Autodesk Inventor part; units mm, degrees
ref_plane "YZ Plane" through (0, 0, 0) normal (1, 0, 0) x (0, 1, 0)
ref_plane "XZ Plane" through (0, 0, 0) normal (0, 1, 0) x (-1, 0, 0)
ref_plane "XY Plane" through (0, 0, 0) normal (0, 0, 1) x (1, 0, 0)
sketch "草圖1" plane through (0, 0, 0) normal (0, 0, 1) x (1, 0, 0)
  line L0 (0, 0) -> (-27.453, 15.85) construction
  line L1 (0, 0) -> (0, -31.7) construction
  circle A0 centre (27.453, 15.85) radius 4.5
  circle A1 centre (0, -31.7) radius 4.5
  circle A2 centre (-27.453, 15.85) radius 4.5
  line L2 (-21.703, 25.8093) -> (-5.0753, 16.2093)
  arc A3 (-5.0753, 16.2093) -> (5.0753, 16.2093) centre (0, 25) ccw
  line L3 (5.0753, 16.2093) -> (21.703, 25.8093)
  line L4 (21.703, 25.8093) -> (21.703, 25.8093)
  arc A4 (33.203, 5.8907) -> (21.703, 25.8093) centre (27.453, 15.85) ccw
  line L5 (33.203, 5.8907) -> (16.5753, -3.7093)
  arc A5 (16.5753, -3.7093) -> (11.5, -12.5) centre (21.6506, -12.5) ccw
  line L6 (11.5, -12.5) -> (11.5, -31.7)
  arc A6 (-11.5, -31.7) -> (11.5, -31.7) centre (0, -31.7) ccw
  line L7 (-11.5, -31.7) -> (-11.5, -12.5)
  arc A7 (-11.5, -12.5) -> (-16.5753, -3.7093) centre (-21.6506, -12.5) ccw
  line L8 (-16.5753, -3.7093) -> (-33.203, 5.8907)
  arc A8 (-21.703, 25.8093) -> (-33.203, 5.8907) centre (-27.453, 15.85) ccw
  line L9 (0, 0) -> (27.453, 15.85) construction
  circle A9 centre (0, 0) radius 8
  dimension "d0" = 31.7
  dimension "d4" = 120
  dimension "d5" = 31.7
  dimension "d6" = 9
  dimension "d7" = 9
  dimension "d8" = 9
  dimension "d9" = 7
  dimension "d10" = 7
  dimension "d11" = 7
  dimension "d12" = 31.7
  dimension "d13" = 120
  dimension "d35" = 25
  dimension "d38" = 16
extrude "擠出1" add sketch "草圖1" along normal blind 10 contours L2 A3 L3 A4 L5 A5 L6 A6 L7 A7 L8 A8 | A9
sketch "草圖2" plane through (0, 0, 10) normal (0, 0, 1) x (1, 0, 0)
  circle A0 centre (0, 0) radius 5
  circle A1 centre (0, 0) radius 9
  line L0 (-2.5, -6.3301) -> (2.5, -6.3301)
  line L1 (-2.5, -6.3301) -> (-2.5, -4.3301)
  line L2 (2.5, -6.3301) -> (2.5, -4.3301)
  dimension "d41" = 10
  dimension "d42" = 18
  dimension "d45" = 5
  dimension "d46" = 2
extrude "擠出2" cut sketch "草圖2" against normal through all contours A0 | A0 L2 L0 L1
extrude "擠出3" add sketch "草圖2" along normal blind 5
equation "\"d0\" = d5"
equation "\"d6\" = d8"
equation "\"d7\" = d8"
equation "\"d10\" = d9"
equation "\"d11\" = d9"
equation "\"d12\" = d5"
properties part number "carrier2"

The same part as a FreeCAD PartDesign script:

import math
import FreeCAD as App
import Part
import Sketcher
from FreeCAD import Vector
Q = App.Units.Quantity

doc = App.newDocument("Part")
body = doc.addObject("PartDesign::Body", "Body")

sketch1 = doc.addObject("Sketcher::SketchObject", "Sketch")
body.addObject(sketch1)
sketch1.AttachmentSupport = (doc.XY_Plane, [""])
sketch1.MapMode = "FlatFace"
sketch1.addGeometry(Part.LineSegment(Vector(-5.0753, 16.2093, 0), Vector(-21.703, 25.8093, 0)), False)
sketch1.addGeometry(Part.ArcOfCircle(Part.Circle(Vector(-27.453, 15.85, 0), Vector(0, 0, 1), 11.500007), math.radians(60.00002), math.radians(240.00002)), False)
sketch1.addGeometry(Part.LineSegment(Vector(-33.203, 5.8907, 0), Vector(-16.5753, -3.7093, 0)), False)
sketch1.addGeometry(Part.ArcOfCircle(Part.Circle(Vector(-21.6506, -12.5, 0), Vector(0, 0, 1), 10.1506), math.radians(0), math.radians(60.000064)), False)
sketch1.addGeometry(Part.LineSegment(Vector(-11.5, -12.5, 0), Vector(-11.5, -31.7, 0)), False)
sketch1.addGeometry(Part.ArcOfCircle(Part.Circle(Vector(0, -31.7, 0), Vector(0, 0, 1), 11.5), math.radians(180), math.radians(360)), False)
sketch1.addGeometry(Part.LineSegment(Vector(11.5, -31.7, 0), Vector(11.5, -12.5, 0)), False)
sketch1.addGeometry(Part.ArcOfCircle(Part.Circle(Vector(21.6506, -12.5, 0), Vector(0, 0, 1), 10.15062), math.radians(119.999936), math.radians(180)), False)
sketch1.addGeometry(Part.LineSegment(Vector(16.5753, -3.7093, 0), Vector(33.203, 5.8907, 0)), False)
sketch1.addGeometry(Part.ArcOfCircle(Part.Circle(Vector(27.453, 15.85, 0), Vector(0, 0, 1), 11.500007), math.radians(-60.00002), math.radians(119.99998)), False)
sketch1.addGeometry(Part.LineSegment(Vector(21.703, 25.8093, 0), Vector(5.0753, 16.2093, 0)), False)
sketch1.addGeometry(Part.ArcOfCircle(Part.Circle(Vector(0, 25, 0), Vector(0, 0, 1), 10.15062), math.radians(-119.999936), math.radians(-60.000064)), False)
sketch1.addGeometry(Part.Circle(Vector(0, -31.7, 0), Vector(0, 0, 1), 4.5), False)
sketch1.addGeometry(Part.Circle(Vector(-27.453, 15.85, 0), Vector(0, 0, 1), 4.5), False)
sketch1.addGeometry(Part.Circle(Vector(27.453, 15.85, 0), Vector(0, 0, 1), 4.5), False)
sketch1.addConstraint(Sketcher.Constraint("Tangent", 0, 2, 1, 1))
sketch1.addConstraint(Sketcher.Constraint("Tangent", 1, 2, 2, 1))
sketch1.addConstraint(Sketcher.Constraint("Tangent", 2, 2, 3, 2))
sketch1.addConstraint(Sketcher.Constraint("Tangent", 3, 1, 4, 1))
sketch1.addConstraint(Sketcher.Constraint("Tangent", 4, 2, 5, 1))
sketch1.addConstraint(Sketcher.Constraint("Tangent", 5, 2, 6, 1))
sketch1.addConstraint(Sketcher.Constraint("Tangent", 6, 2, 7, 2))
sketch1.addConstraint(Sketcher.Constraint("Tangent", 7, 1, 8, 1))
sketch1.addConstraint(Sketcher.Constraint("Tangent", 8, 2, 9, 1))
sketch1.addConstraint(Sketcher.Constraint("Tangent", 9, 2, 10, 1))
sketch1.addConstraint(Sketcher.Constraint("Tangent", 10, 2, 11, 2))
sketch1.addConstraint(Sketcher.Constraint("Tangent", 11, 1, 0, 1))
sketch1.addConstraint(Sketcher.Constraint("Vertical", 4))
sketch1.addConstraint(Sketcher.Constraint("Vertical", 6))
sketch1.addConstraint(Sketcher.Constraint("Coincident", 12, 3, 5, 3))
sketch1.addConstraint(Sketcher.Constraint("Coincident", 13, 3, 1, 3))
sketch1.addConstraint(Sketcher.Constraint("Coincident", 14, 3, 9, 3))
sketch1.addConstraint(Sketcher.Constraint("Equal", 1, 5))
sketch1.addConstraint(Sketcher.Constraint("Equal", 3, 7))
sketch1.addConstraint(Sketcher.Constraint("Equal", 5, 9))
sketch1.addConstraint(Sketcher.Constraint("Equal", 7, 11))
sketch1.addConstraint(Sketcher.Constraint("Equal", 12, 13))
sketch1.addConstraint(Sketcher.Constraint("Equal", 13, 14))
sketch1.addConstraint(Sketcher.Constraint("Symmetric", 3, 3, 7, 3, -2))
sketch1.addConstraint(Sketcher.Constraint("Symmetric", 1, 3, 9, 3, -2))
sketch1.addConstraint(Sketcher.Constraint("PointOnObject", 11, 3, -2))
sketch1.addConstraint(Sketcher.Constraint("Parallel", 0, 2))
sketch1.addConstraint(Sketcher.Constraint("Equal", 0, 2))
sketch1.addConstraint(Sketcher.Constraint("Diameter", 12, Q("9 mm")))
sketch1.addConstraint(Sketcher.Constraint("DistanceY", -1, 1, 11, 3, Q("25 mm")))
sketch1.addConstraint(Sketcher.Constraint("DistanceY", 5, 3, -1, 1, Q("31.7 mm")))
sketch1.addConstraint(Sketcher.Constraint("Radius", 1, Q("11.5 mm")))
sketch1.addConstraint(Sketcher.Constraint("DistanceY", 4, 2, 4, 1, Q("19.2 mm")))
sketch1.addConstraint(Sketcher.Constraint("Distance", 0, Q("19.2 mm")))
pad1 = doc.addObject("PartDesign::Pad", "Pad")
body.addObject(pad1)
pad1.Profile = sketch1
pad1.Length = 10

sketch2 = doc.addObject("Sketcher::SketchObject", "Sketch001")
body.addObject(sketch2)
sketch2.AttachmentSupport = (doc.XY_Plane, [""])
sketch2.MapMode = "FlatFace"
sketch2.AttachmentOffset = App.Placement(Vector(0, 0, 10), App.Rotation())
sketch2.addGeometry(Part.ArcOfCircle(Part.Circle(Vector(0, 0, 0), Vector(0, 0, 1), 5), math.radians(-59.999845), math.radians(239.999845)), False)
sketch2.addGeometry(Part.LineSegment(Vector(-2.5, -4.3301, 0), Vector(-2.5, -6.3301, 0)), False)
sketch2.addGeometry(Part.LineSegment(Vector(-2.5, -6.3301, 0), Vector(2.5, -6.3301, 0)), False)
sketch2.addGeometry(Part.LineSegment(Vector(2.5, -6.3301, 0), Vector(2.5, -4.3301, 0)), False)
sketch2.addConstraint(Sketcher.Constraint("Coincident", 0, 2, 1, 1))
sketch2.addConstraint(Sketcher.Constraint("Coincident", 1, 2, 2, 1))
sketch2.addConstraint(Sketcher.Constraint("Coincident", 2, 2, 3, 1))
sketch2.addConstraint(Sketcher.Constraint("Coincident", 3, 2, 0, 1))
sketch2.addConstraint(Sketcher.Constraint("Vertical", 1))
sketch2.addConstraint(Sketcher.Constraint("Horizontal", 2))
sketch2.addConstraint(Sketcher.Constraint("Vertical", 3))
sketch2.addConstraint(Sketcher.Constraint("Coincident", 0, 3, -1, 1))
sketch2.addConstraint(Sketcher.Constraint("Horizontal", 0, 2, 3, 2))
sketch2.addConstraint(Sketcher.Constraint("Radius", 0, Q("5 mm")))
sketch2.addConstraint(Sketcher.Constraint("DistanceX", 2, 1, 2, 2, Q("5 mm")))
sketch2.addConstraint(Sketcher.Constraint("DistanceY", 1, 2, 1, 1, Q("2 mm")))
pocket1 = doc.addObject("PartDesign::Pocket", "Pocket")
body.addObject(pocket1)
pocket1.Profile = sketch2
pocket1.Type = "ThroughAll"

sketch3 = doc.addObject("Sketcher::SketchObject", "Sketch002")
body.addObject(sketch3)
sketch3.AttachmentSupport = (doc.XY_Plane, [""])
sketch3.MapMode = "FlatFace"
sketch3.AttachmentOffset = App.Placement(Vector(0, 0, 10), App.Rotation())
sketch3.addGeometry(Part.Circle(Vector(0, 0, 0), Vector(0, 0, 1), 9), False)
sketch3.addGeometry(Part.ArcOfCircle(Part.Circle(Vector(0, 0, 0), Vector(0, 0, 1), 5), math.radians(-59.999845), math.radians(239.999845)), False)
sketch3.addGeometry(Part.LineSegment(Vector(2.5, -4.3301, 0), Vector(2.5, -6.3301, 0)), False)
sketch3.addGeometry(Part.LineSegment(Vector(2.5, -6.3301, 0), Vector(-2.5, -6.3301, 0)), False)
sketch3.addGeometry(Part.LineSegment(Vector(-2.5, -6.3301, 0), Vector(-2.5, -4.3301, 0)), False)
sketch3.addConstraint(Sketcher.Constraint("Coincident", 1, 1, 2, 1))
sketch3.addConstraint(Sketcher.Constraint("Coincident", 2, 2, 3, 1))
sketch3.addConstraint(Sketcher.Constraint("Coincident", 3, 2, 4, 1))
sketch3.addConstraint(Sketcher.Constraint("Coincident", 4, 2, 1, 2))
sketch3.addConstraint(Sketcher.Constraint("Vertical", 2))
sketch3.addConstraint(Sketcher.Constraint("Horizontal", 3))
sketch3.addConstraint(Sketcher.Constraint("Vertical", 4))
sketch3.addConstraint(Sketcher.Constraint("Coincident", 0, 3, -1, 1))
sketch3.addConstraint(Sketcher.Constraint("Coincident", 1, 3, -1, 1))
sketch3.addConstraint(Sketcher.Constraint("Horizontal", 1, 1, 4, 2))
sketch3.addConstraint(Sketcher.Constraint("Diameter", 0, Q("18 mm")))
sketch3.addConstraint(Sketcher.Constraint("Radius", 1, Q("5 mm")))
sketch3.addConstraint(Sketcher.Constraint("DistanceX", 3, 2, 3, 1, Q("5 mm")))
sketch3.addConstraint(Sketcher.Constraint("DistanceY", 2, 2, 2, 1, Q("2 mm")))
pad2 = doc.addObject("PartDesign::Pad", "Pad001")
body.addObject(pad2)
pad2.Profile = sketch3
pad2.Length = 5

doc.recompute()
